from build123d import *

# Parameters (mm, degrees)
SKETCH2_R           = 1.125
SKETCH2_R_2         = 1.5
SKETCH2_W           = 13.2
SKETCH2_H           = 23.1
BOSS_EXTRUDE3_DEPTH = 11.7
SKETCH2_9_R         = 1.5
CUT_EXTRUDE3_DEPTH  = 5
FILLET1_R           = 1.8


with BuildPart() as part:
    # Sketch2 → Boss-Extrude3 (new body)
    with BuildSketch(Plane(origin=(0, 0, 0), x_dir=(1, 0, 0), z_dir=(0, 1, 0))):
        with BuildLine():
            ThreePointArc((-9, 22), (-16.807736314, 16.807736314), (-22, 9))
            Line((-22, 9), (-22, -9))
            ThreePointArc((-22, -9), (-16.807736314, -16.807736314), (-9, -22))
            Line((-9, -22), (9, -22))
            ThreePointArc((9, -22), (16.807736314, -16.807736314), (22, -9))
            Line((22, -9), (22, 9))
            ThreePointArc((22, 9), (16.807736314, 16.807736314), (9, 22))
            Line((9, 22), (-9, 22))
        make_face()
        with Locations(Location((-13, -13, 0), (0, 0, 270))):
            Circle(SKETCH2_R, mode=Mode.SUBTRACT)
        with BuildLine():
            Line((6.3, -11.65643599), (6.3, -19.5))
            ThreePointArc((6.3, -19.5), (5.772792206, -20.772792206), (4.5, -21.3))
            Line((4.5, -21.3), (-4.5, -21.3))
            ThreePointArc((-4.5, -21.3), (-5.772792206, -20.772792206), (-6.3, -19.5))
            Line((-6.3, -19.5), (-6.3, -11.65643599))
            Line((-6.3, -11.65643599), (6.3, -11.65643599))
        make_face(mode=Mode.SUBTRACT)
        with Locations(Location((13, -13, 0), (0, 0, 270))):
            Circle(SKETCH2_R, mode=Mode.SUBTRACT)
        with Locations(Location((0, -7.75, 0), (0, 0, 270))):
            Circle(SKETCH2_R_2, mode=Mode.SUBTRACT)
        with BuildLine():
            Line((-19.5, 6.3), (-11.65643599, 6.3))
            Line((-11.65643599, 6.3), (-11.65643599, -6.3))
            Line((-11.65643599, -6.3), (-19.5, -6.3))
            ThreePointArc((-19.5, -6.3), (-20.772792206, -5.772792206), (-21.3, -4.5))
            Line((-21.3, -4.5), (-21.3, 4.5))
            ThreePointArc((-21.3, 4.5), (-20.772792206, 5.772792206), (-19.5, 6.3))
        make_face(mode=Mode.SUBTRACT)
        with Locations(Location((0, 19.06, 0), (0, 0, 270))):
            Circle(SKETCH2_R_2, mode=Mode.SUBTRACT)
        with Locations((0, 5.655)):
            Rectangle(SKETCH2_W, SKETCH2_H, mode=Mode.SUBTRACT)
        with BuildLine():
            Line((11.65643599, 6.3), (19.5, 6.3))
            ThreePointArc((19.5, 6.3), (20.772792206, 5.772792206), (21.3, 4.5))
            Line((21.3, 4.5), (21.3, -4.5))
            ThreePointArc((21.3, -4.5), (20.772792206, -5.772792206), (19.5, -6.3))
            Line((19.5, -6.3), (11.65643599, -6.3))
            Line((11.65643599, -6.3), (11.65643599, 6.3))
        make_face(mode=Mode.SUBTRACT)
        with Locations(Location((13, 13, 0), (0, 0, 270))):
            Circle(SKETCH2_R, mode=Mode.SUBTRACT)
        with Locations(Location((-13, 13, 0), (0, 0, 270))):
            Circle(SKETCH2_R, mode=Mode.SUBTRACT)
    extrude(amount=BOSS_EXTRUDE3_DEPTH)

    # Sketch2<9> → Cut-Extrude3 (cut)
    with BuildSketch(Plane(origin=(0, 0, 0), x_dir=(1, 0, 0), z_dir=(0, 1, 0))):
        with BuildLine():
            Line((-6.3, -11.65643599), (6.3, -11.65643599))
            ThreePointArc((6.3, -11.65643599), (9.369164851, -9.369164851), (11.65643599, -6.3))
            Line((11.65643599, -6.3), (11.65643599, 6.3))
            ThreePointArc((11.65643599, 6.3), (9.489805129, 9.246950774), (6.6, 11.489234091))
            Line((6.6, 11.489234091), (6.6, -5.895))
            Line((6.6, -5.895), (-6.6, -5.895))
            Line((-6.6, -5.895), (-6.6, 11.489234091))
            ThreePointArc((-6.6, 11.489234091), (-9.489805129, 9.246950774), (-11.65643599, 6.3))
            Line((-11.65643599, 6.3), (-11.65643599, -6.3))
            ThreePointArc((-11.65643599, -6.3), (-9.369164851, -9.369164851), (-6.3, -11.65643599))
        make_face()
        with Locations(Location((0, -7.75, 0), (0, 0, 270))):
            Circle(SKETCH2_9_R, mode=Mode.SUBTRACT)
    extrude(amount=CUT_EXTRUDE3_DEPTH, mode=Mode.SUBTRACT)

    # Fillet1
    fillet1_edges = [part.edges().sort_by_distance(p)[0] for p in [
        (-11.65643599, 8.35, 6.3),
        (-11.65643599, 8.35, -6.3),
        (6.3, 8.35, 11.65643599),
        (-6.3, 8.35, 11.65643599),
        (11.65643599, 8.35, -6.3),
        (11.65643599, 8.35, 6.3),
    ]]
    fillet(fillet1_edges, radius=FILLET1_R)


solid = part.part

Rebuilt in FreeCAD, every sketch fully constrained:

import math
import FreeCAD as App
import Part
import Sketcher

V = App.Vector


def edges_at(feature, points):
    """Names of the edges that pass closest to the given points."""
    edges = feature.Shape.Edges
    near = lambda p: min(range(len(edges)), key=lambda i: edges[i].distToShape(Part.Vertex(*p))[0])
    return sorted({f"Edge{near(p) + 1}" for p in points})

doc = App.newDocument("Part")
body = doc.addObject("PartDesign::Body", "Body")

sketch1 = body.newObject("Sketcher::SketchObject", "Sketch")
sketch1.AttachmentSupport = (doc.getObject("XZ_Plane"), [""])
sketch1.MapMode = "FlatFace"
sketch1.addGeometry(Part.ArcOfCircle(Part.Circle(V(0, 0, 0), V(0, 0, 1), 23.8), math.radians(-158), math.radians(-112)), False)
sketch1.addGeometry(Part.LineSegment(V(-22, -9, 0), V(-22, 9, 0)), False)
sketch1.addGeometry(Part.ArcOfCircle(Part.Circle(V(0, 0, 0), V(0, 0, 1), 23.8), math.radians(112), math.radians(158)), False)
sketch1.addGeometry(Part.LineSegment(V(-9, 22, 0), V(9, 22, 0)), False)
sketch1.addGeometry(Part.ArcOfCircle(Part.Circle(V(0, 0, 0), V(0, 0, 1), 23.8), math.radians(22), math.radians(68)), False)
sketch1.addGeometry(Part.LineSegment(V(22, 9, 0), V(22, -9, 0)), False)
sketch1.addGeometry(Part.ArcOfCircle(Part.Circle(V(0, 0, 0), V(0, 0, 1), 23.8), math.radians(-68), math.radians(-22)), False)
sketch1.addGeometry(Part.LineSegment(V(9, -22, 0), V(-9, -22, 0)), False)
sketch1.addGeometry(Part.Circle(V(-13, 13, 0), V(0, 0, 1), 1.1), False)
sketch1.addGeometry(Part.LineSegment(V(-6.3, 11.7, 0), V(6.3, 11.7, 0)), False)
sketch1.addGeometry(Part.LineSegment(V(6.3, 11.7, 0), V(6.3, 19.5, 0)), False)
sketch1.addGeometry(Part.ArcOfCircle(Part.Circle(V(4.5, 19.5, 0), V(0, 0, 1), 1.8), math.radians(0), math.radians(90)), False)
sketch1.addGeometry(Part.LineSegment(V(4.5, 21.3, 0), V(-4.5, 21.3, 0)), False)
sketch1.addGeometry(Part.ArcOfCircle(Part.Circle(V(-4.5, 19.5, 0), V(0, 0, 1), 1.8), math.radians(90), math.radians(180)), False)
sketch1.addGeometry(Part.LineSegment(V(-6.3, 19.5, 0), V(-6.3, 11.7, 0)), False)
sketch1.addGeometry(Part.Circle(V(13, 13, 0), V(0, 0, 1), 1.1), False)
sketch1.addGeometry(Part.Circle(V(0, 7.8, 0), V(0, 0, 1), 1.5), False)
sketch1.addGeometry(Part.ArcOfCircle(Part.Circle(V(-19.5, -4.5, 0), V(0, 0, 1), 1.8), math.radians(180), math.radians(270)), False)
sketch1.addGeometry(Part.LineSegment(V(-19.5, -6.3, 0), V(-11.7, -6.3, 0)), False)
sketch1.addGeometry(Part.LineSegment(V(-11.7, -6.3, 0), V(-11.7, 6.3, 0)), False)
sketch1.addGeometry(Part.LineSegment(V(-11.7, 6.3, 0), V(-19.5, 6.3, 0)), False)
sketch1.addGeometry(Part.ArcOfCircle(Part.Circle(V(-19.5, 4.5, 0), V(0, 0, 1), 1.8), math.radians(90), math.radians(180)), False)
sketch1.addGeometry(Part.LineSegment(V(-21.3, 4.5, 0), V(-21.3, -4.5, 0)), False)
sketch1.addGeometry(Part.Circle(V(-13, -13, 0), V(0, 0, 1), 1.1), False)
sketch1.addGeometry(Part.LineSegment(V(6.6, 5.9, 0), V(-6.6, 5.9, 0)), False)
sketch1.addGeometry(Part.LineSegment(V(-6.6, 5.9, 0), V(-6.6, -17.2, 0)), False)
sketch1.addGeometry(Part.LineSegment(V(-6.6, -17.2, 0), V(6.6, -17.2, 0)), False)
sketch1.addGeometry(Part.LineSegment(V(6.6, -17.2, 0), V(6.6, 5.9, 0)), False)
sketch1.addGeometry(Part.LineSegment(V(11.7, 6.3, 0), V(11.7, -6.3, 0)), False)
sketch1.addGeometry(Part.LineSegment(V(11.7, -6.3, 0), V(19.5, -6.3, 0)), False)
sketch1.addGeometry(Part.ArcOfCircle(Part.Circle(V(19.5, -4.5, 0), V(0, 0, 1), 1.8), math.radians(-90), math.radians(0)), False)
sketch1.addGeometry(Part.LineSegment(V(21.3, -4.5, 0), V(21.3, 4.5, 0)), False)
sketch1.addGeometry(Part.ArcOfCircle(Part.Circle(V(19.5, 4.5, 0), V(0, 0, 1), 1.8), math.radians(0), math.radians(90)), False)
sketch1.addGeometry(Part.LineSegment(V(19.5, 6.3, 0), V(11.7, 6.3, 0)), False)
sketch1.addGeometry(Part.Circle(V(0, -19.1, 0), V(0, 0, 1), 1.5), False)
sketch1.addGeometry(Part.Circle(V(13, -13, 0), V(0, 0, 1), 1.1), False)
sketch1.addConstraint(Sketcher.Constraint("Coincident", 0, 1, 1, 1))
sketch1.addConstraint(Sketcher.Constraint("Coincident", 1, 2, 2, 2))
sketch1.addConstraint(Sketcher.Constraint("Coincident", 2, 1, 3, 1))
sketch1.addConstraint(Sketcher.Constraint("Coincident", 3, 2, 4, 2))
sketch1.addConstraint(Sketcher.Constraint("Coincident", 4, 1, 5, 1))
sketch1.addConstraint(Sketcher.Constraint("Coincident", 5, 2, 6, 2))
sketch1.addConstraint(Sketcher.Constraint("Coincident", 6, 1, 7, 1))
sketch1.addConstraint(Sketcher.Constraint("Coincident", 7, 2, 0, 2))
sketch1.addConstraint(Sketcher.Constraint("Coincident", 9, 2, 10, 1))
sketch1.addConstraint(Sketcher.Constraint("Tangent", 10, 2, 11, 1))
sketch1.addConstraint(Sketcher.Constraint("Tangent", 11, 2, 12, 1))
sketch1.addConstraint(Sketcher.Constraint("Tangent", 12, 2, 13, 1))
sketch1.addConstraint(Sketcher.Constraint("Tangent", 13, 2, 14, 1))
sketch1.addConstraint(Sketcher.Constraint("Coincident", 14, 2, 9, 1))
sketch1.addConstraint(Sketcher.Constraint("Tangent", 17, 2, 18, 1))
sketch1.addConstraint(Sketcher.Constraint("Coincident", 18, 2, 19, 1))
sketch1.addConstraint(Sketcher.Constraint("Coincident", 19, 2, 20, 1))
sketch1.addConstraint(Sketcher.Constraint("Tangent", 20, 2, 21, 1))
sketch1.addConstraint(Sketcher.Constraint("Tangent", 21, 2, 22, 1))
sketch1.addConstraint(Sketcher.Constraint("Tangent", 22, 2, 17, 1))
sketch1.addConstraint(Sketcher.Constraint("Coincident", 24, 2, 25, 1))
sketch1.addConstraint(Sketcher.Constraint("Coincident", 25, 2, 26, 1))
sketch1.addConstraint(Sketcher.Constraint("Coincident", 26, 2, 27, 1))
sketch1.addConstraint(Sketcher.Constraint("Coincident", 27, 2, 24, 1))
sketch1.addConstraint(Sketcher.Constraint("Coincident", 28, 2, 29, 1))
sketch1.addConstraint(Sketcher.Constraint("Tangent", 29, 2, 30, 1))
sketch1.addConstraint(Sketcher.Constraint("Tangent", 30, 2, 31, 1))
sketch1.addConstraint(Sketcher.Constraint("Tangent", 31, 2, 32, 1))
sketch1.addConstraint(Sketcher.Constraint("Tangent", 32, 2, 33, 1))
sketch1.addConstraint(Sketcher.Constraint("Coincident", 33, 2, 28, 1))
sketch1.addConstraint(Sketcher.Constraint("Vertical", 1))
sketch1.addConstraint(Sketcher.Constraint("Horizontal", 3))
sketch1.addConstraint(Sketcher.Constraint("Vertical", 5))
sketch1.addConstraint(Sketcher.Constraint("Horizontal", 7))
sketch1.addConstraint(Sketcher.Constraint("Horizontal", 9))
sketch1.addConstraint(Sketcher.Constraint("Vertical", 10))
sketch1.addConstraint(Sketcher.Constraint("Horizontal", 12))
sketch1.addConstraint(Sketcher.Constraint("Vertical", 14))
sketch1.addConstraint(Sketcher.Constraint("Horizontal", 18))
sketch1.addConstraint(Sketcher.Constraint("Vertical", 19))
sketch1.addConstraint(Sketcher.Constraint("Horizontal", 20))
sketch1.addConstraint(Sketcher.Constraint("Vertical", 22))
sketch1.addConstraint(Sketcher.Constraint("Horizontal", 24))
sketch1.addConstraint(Sketcher.Constraint("Vertical", 25))
sketch1.addConstraint(Sketcher.Constraint("Horizontal", 26))
sketch1.addConstraint(Sketcher.Constraint("Vertical", 27))
sketch1.addConstraint(Sketcher.Constraint("Vertical", 28))
sketch1.addConstraint(Sketcher.Constraint("Horizontal", 29))
sketch1.addConstraint(Sketcher.Constraint("Vertical", 31))
sketch1.addConstraint(Sketcher.Constraint("Horizontal", 33))
sketch1.addConstraint(Sketcher.Constraint("Coincident", 0, 3, -1, 1))
sketch1.addConstraint(Sketcher.Constraint("Coincident", 2, 3, -1, 1))
sketch1.addConstraint(Sketcher.Constraint("Coincident", 4, 3, -1, 1))
sketch1.addConstraint(Sketcher.Constraint("Coincident", 6, 3, -1, 1))
sketch1.addConstraint(Sketcher.Constraint("Equal", 0, 2))
sketch1.addConstraint(Sketcher.Constraint("Equal", 2, 4))
sketch1.addConstraint(Sketcher.Constraint("Equal", 4, 6))
sketch1.addConstraint(Sketcher.Constraint("Equal", 11, 13))
sketch1.addConstraint(Sketcher.Constraint("Equal", 8, 15))
sketch1.addConstraint(Sketcher.Constraint("Equal", 13, 17))
sketch1.addConstraint(Sketcher.Constraint("Equal", 17, 21))
sketch1.addConstraint(Sketcher.Constraint("Equal", 15, 23))
sketch1.addConstraint(Sketcher.Constraint("Equal", 21, 30))
sketch1.addConstraint(Sketcher.Constraint("Equal", 30, 32))
sketch1.addConstraint(Sketcher.Constraint("Equal", 16, 34))
sketch1.addConstraint(Sketcher.Constraint("Equal", 23, 35))
sketch1.addConstraint(Sketcher.Constraint("Symmetric", 15, 3, 23, 3, -1, 1))
sketch1.addConstraint(Sketcher.Constraint("Symmetric", 21, 3, 30, 3, -1, 1))
sketch1.addConstraint(Sketcher.Constraint("Symmetric", 8, 3, 35, 3, -1, 1))
sketch1.addConstraint(Sketcher.Constraint("Symmetric", 18, 2, 33, 2, -1, 1))
sketch1.addConstraint(Sketcher.Constraint("Symmetric", 8, 3, 15, 3, -2))
sketch1.addConstraint(Sketcher.Constraint("PointOnObject", 16, 3, -2))
sketch1.addConstraint(Sketcher.Constraint("PointOnObject", 34, 3, -2))
sketch1.addConstraint(Sketcher.Constraint("Horizontal", 17, 3, 30, 3))
sketch1.addConstraint(Sketcher.Constraint("Horizontal", 1, 2, 4, 1))
sketch1.addConstraint(Sketcher.Constraint("Vertical", 3, 2, 6, 1))
sketch1.addConstraint(Sketcher.Constraint("Equal", 7, 1))
sketch1.addConstraint(Sketcher.Constraint("Equal", 33, 10))
sketch1.addConstraint(Sketcher.Constraint("Equal", 9, 19))
sketch1.addConstraint(Sketcher.Constraint("Diameter", 16, 3.0))
sketch1.addConstraint(Sketcher.Constraint("Radius", 11, 1.8))
sketch1.addConstraint(Sketcher.Constraint("Diameter", 8, 2.25))
sketch1.addConstraint(Sketcher.Constraint("DistanceX", 3, 1, 3, 2, 18.0))
sketch1.addConstraint(Sketcher.Constraint("DistanceX", 12, 2, 12, 1, 9.0))
sketch1.addConstraint(Sketcher.Constraint("DistanceX", 24, 2, 24, 1, 13.2))
sketch1.addConstraint(Sketcher.Constraint("DistanceY", 25, 2, 25, 1, 23.1))
sketch1.addConstraint(Sketcher.Constraint("DistanceX", 8, 3, -1, 1, 13.0))
sketch1.addConstraint(Sketcher.Constraint("DistanceY", -1, 1, 8, 3, 13.0))
sketch1.addConstraint(Sketcher.Constraint("DistanceX", 0, 1, -1, 1, 22.0))
sketch1.addConstraint(Sketcher.Constraint("DistanceX", -1, 1, 11, 3, 4.5))
sketch1.addConstraint(Sketcher.Constraint("DistanceY", -1, 1, 11, 3, 19.5))
sketch1.addConstraint(Sketcher.Constraint("DistanceX", 17, 3, -1, 1, 19.5))
sketch1.addConstraint(Sketcher.Constraint("DistanceX", 24, 2, -1, 1, 6.6))
sketch1.addConstraint(Sketcher.Constraint("DistanceY", -1, 1, 16, 3, 7.75))
sketch1.addConstraint(Sketcher.Constraint("DistanceY", 34, 3, -1, 1, 19.06))
sketch1.addConstraint(Sketcher.Constraint("DistanceY", -1, 1, 24, 2, 5.895))
sketch1.addConstraint(Sketcher.Constraint("DistanceX", 18, 1, 18, 2, 7.843564))
pad1 = body.newObject("PartDesign::Pad", "Pad")
pad1.Profile = sketch1
pad1.Length = 11.7
pad1.Reversed = True

sketch2 = body.newObject("Sketcher::SketchObject", "Sketch001")
sketch2.AttachmentSupport = (doc.getObject("XZ_Plane"), [""])
sketch2.MapMode = "FlatFace"
sketch2.addGeometry(Part.LineSegment(V(-6.3, 11.7, 0), V(6.3, 11.7, 0)), False)
sketch2.addGeometry(Part.ArcOfCircle(Part.Circle(V(0, 0, 0), V(0, 0, 1), 13.2), math.radians(28), math.radians(62)), False)
sketch2.addGeometry(Part.LineSegment(V(11.7, 6.3, 0), V(11.7, -6.3, 0)), False)
sketch2.addGeometry(Part.ArcOfCircle(Part.Circle(V(0, 0, 0), V(0, 0, 1), 13.2), math.radians(-60), math.radians(-28)), False)
sketch2.addGeometry(Part.LineSegment(V(6.6, -11.5, 0), V(6.6, 5.9, 0)), False)
sketch2.addGeometry(Part.LineSegment(V(6.6, 5.9, 0), V(-6.6, 5.9, 0)), False)
sketch2.addGeometry(Part.LineSegment(V(-6.6, 5.9, 0), V(-6.6, -11.5, 0)), False)
sketch2.addGeometry(Part.ArcOfCircle(Part.Circle(V(0, 0, 0), V(0, 0, 1), 13.2), math.radians(-152), math.radians(-120)), False)
sketch2.addGeometry(Part.LineSegment(V(-11.7, -6.3, 0), V(-11.7, 6.3, 0)), False)
sketch2.addGeometry(Part.ArcOfCircle(Part.Circle(V(0, 0, 0), V(0, 0, 1), 13.2), math.radians(118), math.radians(152)), False)
sketch2.addGeometry(Part.Circle(V(0, 7.8, 0), V(0, 0, 1), 1.5), False)
sketch2.addConstraint(Sketcher.Constraint("Coincident", 0, 2, 1, 2))
sketch2.addConstraint(Sketcher.Constraint("Coincident", 1, 1, 2, 1))
sketch2.addConstraint(Sketcher.Constraint("Coincident", 2, 2, 3, 2))
sketch2.addConstraint(Sketcher.Constraint("Coincident", 3, 1, 4, 1))
sketch2.addConstraint(Sketcher.Constraint("Coincident", 4, 2, 5, 1))
sketch2.addConstraint(Sketcher.Constraint("Coincident", 5, 2, 6, 1))
sketch2.addConstraint(Sketcher.Constraint("Coincident", 6, 2, 7, 2))
sketch2.addConstraint(Sketcher.Constraint("Coincident", 7, 1, 8, 1))
sketch2.addConstraint(Sketcher.Constraint("Coincident", 8, 2, 9, 2))
sketch2.addConstraint(Sketcher.Constraint("Coincident", 9, 1, 0, 1))
sketch2.addConstraint(Sketcher.Constraint("Horizontal", 0))
sketch2.addConstraint(Sketcher.Constraint("Vertical", 2))
sketch2.addConstraint(Sketcher.Constraint("Vertical", 4))
sketch2.addConstraint(Sketcher.Constraint("Horizontal", 5))
sketch2.addConstraint(Sketcher.Constraint("Vertical", 6))
sketch2.addConstraint(Sketcher.Constraint("Vertical", 8))
sketch2.addConstraint(Sketcher.Constraint("Coincident", 1, 3, -1, 1))
sketch2.addConstraint(Sketcher.Constraint("Coincident", 3, 3, -1, 1))
sketch2.addConstraint(Sketcher.Constraint("Coincident", 7, 3, -1, 1))
sketch2.addConstraint(Sketcher.Constraint("Coincident", 9, 3, -1, 1))
sketch2.addConstraint(Sketcher.Constraint("Equal", 1, 3))
sketch2.addConstraint(Sketcher.Constraint("Equal", 3, 7))
sketch2.addConstraint(Sketcher.Constraint("Equal", 7, 9))
sketch2.addConstraint(Sketcher.Constraint("PointOnObject", 10, 3, -2))
sketch2.addConstraint(Sketcher.Constraint("Horizontal", 3, 1, 6, 2))
sketch2.addConstraint(Sketcher.Constraint("Horizontal", 2, 2, 7, 1))
sketch2.addConstraint(Sketcher.Constraint("Equal", 0, 2))
sketch2.addConstraint(Sketcher.Constraint("Diameter", 10, 3.0))
sketch2.addConstraint(Sketcher.Constraint("Radius", 1, 13.25))
sketch2.addConstraint(Sketcher.Constraint("DistanceX", 0, 1, 0, 2, 12.6))
sketch2.addConstraint(Sketcher.Constraint("DistanceX", 5, 2, 5, 1, 13.2))
sketch2.addConstraint(Sketcher.Constraint("DistanceY", -1, 1, 10, 3, 7.75))
sketch2.addConstraint(Sketcher.Constraint("DistanceY", -1, 1, 4, 2, 5.895))
pocket1 = body.newObject("PartDesign::Pocket", "Pocket")
pocket1.Profile = sketch2
pocket1.Length = 5
doc.recompute()

fillet = body.newObject("PartDesign::Fillet", "Fillet")
fillet.Base = (pocket1, edges_at(pocket1, [
    (-11.656, 8.35, 6.3),
    (-11.656, 8.35, -6.3),
    (6.3, 8.35, 11.656),
    (-6.3, 8.35, 11.656),
    (11.656, 8.35, -6.3),
    (11.656, 8.35, 6.3),
]))
fillet.Radius = 1.8

doc.recompute()
